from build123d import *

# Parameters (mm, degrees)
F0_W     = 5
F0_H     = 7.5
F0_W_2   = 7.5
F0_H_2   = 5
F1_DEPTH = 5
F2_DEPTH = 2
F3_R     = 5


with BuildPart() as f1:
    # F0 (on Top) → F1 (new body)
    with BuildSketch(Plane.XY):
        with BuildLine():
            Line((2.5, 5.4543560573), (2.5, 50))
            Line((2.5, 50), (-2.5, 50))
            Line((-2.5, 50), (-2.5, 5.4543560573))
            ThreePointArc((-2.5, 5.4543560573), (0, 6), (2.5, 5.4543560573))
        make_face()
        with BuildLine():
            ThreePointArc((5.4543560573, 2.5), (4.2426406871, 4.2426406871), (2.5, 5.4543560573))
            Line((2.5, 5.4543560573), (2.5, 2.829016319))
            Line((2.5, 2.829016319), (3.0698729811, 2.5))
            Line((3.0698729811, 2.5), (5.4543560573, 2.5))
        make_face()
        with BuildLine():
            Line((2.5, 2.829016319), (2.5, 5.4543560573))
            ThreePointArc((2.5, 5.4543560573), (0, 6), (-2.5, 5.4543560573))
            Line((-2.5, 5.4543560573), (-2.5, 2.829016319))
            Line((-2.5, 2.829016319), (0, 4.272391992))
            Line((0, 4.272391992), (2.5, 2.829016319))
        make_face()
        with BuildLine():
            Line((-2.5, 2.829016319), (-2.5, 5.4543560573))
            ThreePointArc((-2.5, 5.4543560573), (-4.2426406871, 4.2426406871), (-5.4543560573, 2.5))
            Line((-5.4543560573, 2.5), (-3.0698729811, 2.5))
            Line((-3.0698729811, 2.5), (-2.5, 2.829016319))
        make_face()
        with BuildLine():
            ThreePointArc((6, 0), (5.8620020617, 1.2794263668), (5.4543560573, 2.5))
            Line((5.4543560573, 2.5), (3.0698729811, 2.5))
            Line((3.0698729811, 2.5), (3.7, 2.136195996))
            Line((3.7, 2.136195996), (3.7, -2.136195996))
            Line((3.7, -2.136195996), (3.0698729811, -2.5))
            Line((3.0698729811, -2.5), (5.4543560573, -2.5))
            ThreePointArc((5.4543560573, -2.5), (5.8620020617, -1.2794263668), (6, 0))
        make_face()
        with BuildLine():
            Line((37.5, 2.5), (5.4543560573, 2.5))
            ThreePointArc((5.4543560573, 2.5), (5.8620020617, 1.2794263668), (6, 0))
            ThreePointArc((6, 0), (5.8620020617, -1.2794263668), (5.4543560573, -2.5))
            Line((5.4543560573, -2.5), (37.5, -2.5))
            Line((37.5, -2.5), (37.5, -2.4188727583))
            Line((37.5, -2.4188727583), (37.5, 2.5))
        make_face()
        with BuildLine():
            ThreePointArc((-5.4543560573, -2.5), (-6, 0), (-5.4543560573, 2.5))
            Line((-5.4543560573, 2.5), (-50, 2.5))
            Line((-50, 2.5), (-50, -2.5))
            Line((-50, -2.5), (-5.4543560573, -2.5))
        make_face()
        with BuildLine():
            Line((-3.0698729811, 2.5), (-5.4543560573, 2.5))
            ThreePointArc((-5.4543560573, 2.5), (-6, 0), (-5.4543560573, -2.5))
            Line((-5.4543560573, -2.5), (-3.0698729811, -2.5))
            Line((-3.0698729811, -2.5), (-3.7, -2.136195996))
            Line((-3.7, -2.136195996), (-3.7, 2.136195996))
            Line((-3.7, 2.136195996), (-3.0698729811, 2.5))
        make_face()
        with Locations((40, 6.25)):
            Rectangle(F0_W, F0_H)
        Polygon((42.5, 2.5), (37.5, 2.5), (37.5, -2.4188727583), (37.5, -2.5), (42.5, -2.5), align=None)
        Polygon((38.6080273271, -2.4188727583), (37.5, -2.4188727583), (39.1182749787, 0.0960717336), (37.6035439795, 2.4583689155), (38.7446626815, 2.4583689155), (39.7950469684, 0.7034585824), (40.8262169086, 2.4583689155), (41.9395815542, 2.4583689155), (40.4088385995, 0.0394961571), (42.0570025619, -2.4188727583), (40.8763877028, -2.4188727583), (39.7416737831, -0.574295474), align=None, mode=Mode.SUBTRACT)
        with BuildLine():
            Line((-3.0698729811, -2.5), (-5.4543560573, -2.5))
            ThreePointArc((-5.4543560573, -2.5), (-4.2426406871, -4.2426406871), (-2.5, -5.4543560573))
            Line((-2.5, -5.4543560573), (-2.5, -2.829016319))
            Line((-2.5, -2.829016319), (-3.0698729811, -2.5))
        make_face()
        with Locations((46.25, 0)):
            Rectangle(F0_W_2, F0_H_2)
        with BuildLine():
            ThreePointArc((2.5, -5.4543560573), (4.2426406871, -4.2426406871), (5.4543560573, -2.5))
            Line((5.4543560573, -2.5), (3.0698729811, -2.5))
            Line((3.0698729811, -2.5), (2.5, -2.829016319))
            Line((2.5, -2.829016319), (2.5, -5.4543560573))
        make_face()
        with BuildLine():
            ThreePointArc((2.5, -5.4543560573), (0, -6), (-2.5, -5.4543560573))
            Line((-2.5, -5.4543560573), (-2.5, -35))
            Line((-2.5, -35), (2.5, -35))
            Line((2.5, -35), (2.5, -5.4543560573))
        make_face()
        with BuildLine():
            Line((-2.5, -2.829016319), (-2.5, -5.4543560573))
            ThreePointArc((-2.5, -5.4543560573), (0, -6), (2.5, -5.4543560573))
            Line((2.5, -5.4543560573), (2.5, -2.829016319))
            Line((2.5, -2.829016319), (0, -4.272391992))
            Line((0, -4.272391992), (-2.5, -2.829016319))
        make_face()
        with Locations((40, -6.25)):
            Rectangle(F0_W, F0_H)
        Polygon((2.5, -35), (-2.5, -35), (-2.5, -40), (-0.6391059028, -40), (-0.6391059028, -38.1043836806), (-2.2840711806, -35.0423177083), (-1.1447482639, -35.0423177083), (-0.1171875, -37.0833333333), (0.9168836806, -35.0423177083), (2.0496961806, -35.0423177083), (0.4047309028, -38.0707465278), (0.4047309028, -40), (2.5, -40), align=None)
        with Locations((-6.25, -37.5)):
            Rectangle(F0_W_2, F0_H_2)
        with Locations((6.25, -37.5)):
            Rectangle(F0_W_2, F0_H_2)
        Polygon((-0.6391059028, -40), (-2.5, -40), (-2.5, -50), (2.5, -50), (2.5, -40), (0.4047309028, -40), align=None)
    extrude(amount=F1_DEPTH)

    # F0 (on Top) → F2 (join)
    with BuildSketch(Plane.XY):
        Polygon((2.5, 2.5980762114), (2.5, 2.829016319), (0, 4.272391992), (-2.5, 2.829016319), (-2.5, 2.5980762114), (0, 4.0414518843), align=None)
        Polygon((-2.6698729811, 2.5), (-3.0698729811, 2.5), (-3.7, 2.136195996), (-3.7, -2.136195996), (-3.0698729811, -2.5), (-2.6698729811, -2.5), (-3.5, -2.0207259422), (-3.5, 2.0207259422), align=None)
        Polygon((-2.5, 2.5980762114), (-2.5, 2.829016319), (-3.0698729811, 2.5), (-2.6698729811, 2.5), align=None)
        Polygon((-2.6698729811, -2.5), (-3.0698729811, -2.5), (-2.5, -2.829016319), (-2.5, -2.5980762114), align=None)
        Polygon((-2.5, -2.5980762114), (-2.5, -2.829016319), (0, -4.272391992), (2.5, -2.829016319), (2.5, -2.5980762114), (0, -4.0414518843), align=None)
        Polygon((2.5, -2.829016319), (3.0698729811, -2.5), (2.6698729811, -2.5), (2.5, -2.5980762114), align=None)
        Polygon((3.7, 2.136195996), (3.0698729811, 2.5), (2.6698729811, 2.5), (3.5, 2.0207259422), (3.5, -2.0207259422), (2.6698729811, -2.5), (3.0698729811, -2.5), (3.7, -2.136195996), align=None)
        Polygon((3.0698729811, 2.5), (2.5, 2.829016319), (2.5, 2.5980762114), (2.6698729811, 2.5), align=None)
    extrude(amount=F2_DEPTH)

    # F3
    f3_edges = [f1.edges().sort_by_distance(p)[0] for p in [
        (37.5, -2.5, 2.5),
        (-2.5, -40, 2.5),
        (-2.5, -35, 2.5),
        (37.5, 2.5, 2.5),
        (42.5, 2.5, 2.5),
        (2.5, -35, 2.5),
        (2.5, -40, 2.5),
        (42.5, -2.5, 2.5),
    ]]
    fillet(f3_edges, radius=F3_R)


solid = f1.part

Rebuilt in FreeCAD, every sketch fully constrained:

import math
import FreeCAD as App
import Part
import Sketcher
from FreeCAD import Vector
Q = App.Units.Quantity


def edges_at(feature, points):
    """Names of the edges that pass closest to the given points."""
    edges = feature.Shape.Edges
    near = lambda p: min(range(len(edges)), key=lambda i: edges[i].distToShape(Part.Vertex(*p))[0])
    return sorted({f"Edge{near(p) + 1}" for p in points})


def add_polygon(sketch, points):
    """Adds a closed chain of lines whose ends are joined by coincident constraints."""
    first, n = sketch.GeometryCount, len(points)
    for a, b in zip(points, points[1:] + points[:1]):
        sketch.addGeometry(Part.LineSegment(App.Vector(*a, 0), App.Vector(*b, 0)), False)
    for i in range(n):
        sketch.addConstraint(Sketcher.Constraint("Coincident", first + i, 2, first + (i + 1) % n, 1))

doc = App.newDocument("Part")
body = doc.addObject("PartDesign::Body", "Body")

sketch1 = doc.addObject("Sketcher::SketchObject", "Sketch")
body.addObject(sketch1)
sketch1.AttachmentSupport = (doc.XY_Plane, [""])
sketch1.MapMode = "FlatFace"
sketch1.addGeometry(Part.LineSegment(Vector(2.5, 5.5, 0), Vector(2.5, 50, 0)), False)
sketch1.addGeometry(Part.LineSegment(Vector(2.5, 50, 0), Vector(-2.5, 50, 0)), False)
sketch1.addGeometry(Part.LineSegment(Vector(-2.5, 50, 0), Vector(-2.5, 5.5, 0)), False)
sketch1.addGeometry(Part.ArcOfCircle(Part.Circle(Vector(0, 0, 0), Vector(0, 0, 1), 6), math.radians(115), math.radians(155)), False)
sketch1.addGeometry(Part.LineSegment(Vector(-5.5, 2.5, 0), Vector(-50, 2.5, 0)), False)
sketch1.addGeometry(Part.LineSegment(Vector(-50, 2.5, 0), Vector(-50, -2.5, 0)), False)
sketch1.addGeometry(Part.LineSegment(Vector(-50, -2.5, 0), Vector(-5.5, -2.5, 0)), False)
sketch1.addGeometry(Part.ArcOfCircle(Part.Circle(Vector(0, 0, 0), Vector(0, 0, 1), 6), math.radians(-155), math.radians(-115)), False)
sketch1.addGeometry(Part.LineSegment(Vector(-2.5, -5.5, 0), Vector(-2.5, -35, 0)), False)
sketch1.addGeometry(Part.LineSegment(Vector(-2.5, -35, 0), Vector(-10, -35, 0)), False)
sketch1.addGeometry(Part.LineSegment(Vector(-10, -35, 0), Vector(-10, -40, 0)), False)
sketch1.addGeometry(Part.LineSegment(Vector(-10, -40, 0), Vector(-2.5, -40, 0)), False)
sketch1.addGeometry(Part.LineSegment(Vector(-2.5, -40, 0), Vector(-2.5, -50, 0)), False)
sketch1.addGeometry(Part.LineSegment(Vector(-2.5, -50, 0), Vector(2.5, -50, 0)), False)
sketch1.addGeometry(Part.LineSegment(Vector(2.5, -50, 0), Vector(2.5, -40, 0)), False)
sketch1.addGeometry(Part.LineSegment(Vector(2.5, -40, 0), Vector(10, -40, 0)), False)
sketch1.addGeometry(Part.LineSegment(Vector(10, -40, 0), Vector(10, -35, 0)), False)
sketch1.addGeometry(Part.LineSegment(Vector(10, -35, 0), Vector(2.5, -35, 0)), False)
sketch1.addGeometry(Part.LineSegment(Vector(2.5, -35, 0), Vector(2.5, -5.5, 0)), False)
sketch1.addGeometry(Part.ArcOfCircle(Part.Circle(Vector(0, 0, 0), Vector(0, 0, 1), 6), math.radians(-65), math.radians(-25)), False)
sketch1.addGeometry(Part.LineSegment(Vector(5.5, -2.5, 0), Vector(37.5, -2.5, 0)), False)
sketch1.addGeometry(Part.LineSegment(Vector(37.5, -2.5, 0), Vector(37.5, -10, 0)), False)
sketch1.addGeometry(Part.LineSegment(Vector(37.5, -10, 0), Vector(42.5, -10, 0)), False)
sketch1.addGeometry(Part.LineSegment(Vector(42.5, -10, 0), Vector(42.5, -2.5, 0)), False)
sketch1.addGeometry(Part.LineSegment(Vector(42.5, -2.5, 0), Vector(50, -2.5, 0)), False)
sketch1.addGeometry(Part.LineSegment(Vector(50, -2.5, 0), Vector(50, 2.5, 0)), False)
sketch1.addGeometry(Part.LineSegment(Vector(50, 2.5, 0), Vector(42.5, 2.5, 0)), False)
sketch1.addGeometry(Part.LineSegment(Vector(42.5, 2.5, 0), Vector(42.5, 10, 0)), False)
sketch1.addGeometry(Part.LineSegment(Vector(42.5, 10, 0), Vector(37.5, 10, 0)), False)
sketch1.addGeometry(Part.LineSegment(Vector(37.5, 10, 0), Vector(37.5, 2.5, 0)), False)
sketch1.addGeometry(Part.LineSegment(Vector(37.5, 2.5, 0), Vector(5.5, 2.5, 0)), False)
sketch1.addGeometry(Part.ArcOfCircle(Part.Circle(Vector(0, 0, 0), Vector(0, 0, 1), 6), math.radians(25), math.radians(65)), False)
add_polygon(sketch1, [(-0.6, -40), (-0.6, -38.1), (-2.3, -35), (-1.1, -35), (-0.1, -37.1), (0.9, -35), (2, -35), (0.4, -38.1), (0.4, -40)])
add_polygon(sketch1, [(-2.5, -2.8), (-3.1, -2.5), (-3.7, -2.1), (-3.7, 2.1), (-3.1, 2.5), (-2.5, 2.8), (0, 4.3), (2.5, 2.8), (3.1, 2.5), (3.7, 2.1), (3.7, -2.1), (3.1, -2.5), (2.5, -2.8), (0, -4.3)])
add_polygon(sketch1, [(39.7, -0.6), (38.6, -2.4), (37.5, -2.4), (39.1, 0.1), (37.6, 2.5), (38.7, 2.5), (39.8, 0.7), (40.8, 2.5), (41.9, 2.5), (40.4, 0), (42.1, -2.4), (40.9, -2.4)])
sketch1.addConstraint([
    Sketcher.Constraint("Coincident", 0, 2, 1, 1),
    Sketcher.Constraint("Coincident", 1, 2, 2, 1),
    Sketcher.Constraint("Coincident", 2, 2, 3, 1),
    Sketcher.Constraint("Coincident", 3, 2, 4, 1),
    Sketcher.Constraint("Coincident", 4, 2, 5, 1),
    Sketcher.Constraint("Coincident", 5, 2, 6, 1),
    Sketcher.Constraint("Coincident", 6, 2, 7, 1),
    Sketcher.Constraint("Coincident", 7, 2, 8, 1),
    Sketcher.Constraint("Coincident", 8, 2, 9, 1),
    Sketcher.Constraint("Coincident", 9, 2, 10, 1),
    Sketcher.Constraint("Coincident", 10, 2, 11, 1),
    Sketcher.Constraint("Coincident", 11, 2, 12, 1),
    Sketcher.Constraint("Coincident", 12, 2, 13, 1),
    Sketcher.Constraint("Coincident", 13, 2, 14, 1),
    Sketcher.Constraint("Coincident", 14, 2, 15, 1),
    Sketcher.Constraint("Coincident", 15, 2, 16, 1),
    Sketcher.Constraint("Coincident", 16, 2, 17, 1),
    Sketcher.Constraint("Coincident", 17, 2, 18, 1),
    Sketcher.Constraint("Coincident", 18, 2, 19, 1),
    Sketcher.Constraint("Coincident", 19, 2, 20, 1),
    Sketcher.Constraint("Coincident", 20, 2, 21, 1),
    Sketcher.Constraint("Coincident", 21, 2, 22, 1),
    Sketcher.Constraint("Coincident", 22, 2, 23, 1),
    Sketcher.Constraint("Coincident", 23, 2, 24, 1),
    Sketcher.Constraint("Coincident", 24, 2, 25, 1),
    Sketcher.Constraint("Coincident", 25, 2, 26, 1),
    Sketcher.Constraint("Coincident", 26, 2, 27, 1),
    Sketcher.Constraint("Coincident", 27, 2, 28, 1),
    Sketcher.Constraint("Coincident", 28, 2, 29, 1),
    Sketcher.Constraint("Coincident", 29, 2, 30, 1),
    Sketcher.Constraint("Coincident", 30, 2, 31, 1),
    Sketcher.Constraint("Coincident", 31, 2, 0, 1),
    Sketcher.Constraint("Vertical", 0),
    Sketcher.Constraint("Horizontal", 1),
    Sketcher.Constraint("Vertical", 2),
    Sketcher.Constraint("Horizontal", 4),
    Sketcher.Constraint("Vertical", 5),
    Sketcher.Constraint("Horizontal", 6),
    Sketcher.Constraint("Vertical", 8),
    Sketcher.Constraint("Horizontal", 9),
    Sketcher.Constraint("Vertical", 10),
    Sketcher.Constraint("Horizontal", 11),
    Sketcher.Constraint("Vertical", 12),
    Sketcher.Constraint("Horizontal", 13),
    Sketcher.Constraint("Vertical", 14),
    Sketcher.Constraint("Horizontal", 15),
    Sketcher.Constraint("Vertical", 16),
    Sketcher.Constraint("Horizontal", 17),
    Sketcher.Constraint("Vertical", 18),
    Sketcher.Constraint("Horizontal", 20),
    Sketcher.Constraint("Vertical", 21),
    Sketcher.Constraint("Horizontal", 22),
    Sketcher.Constraint("Vertical", 23),
    Sketcher.Constraint("Horizontal", 24),
    Sketcher.Constraint("Vertical", 25),
    Sketcher.Constraint("Horizontal", 26),
    Sketcher.Constraint("Vertical", 27),
    Sketcher.Constraint("Horizontal", 28),
    Sketcher.Constraint("Vertical", 29),
    Sketcher.Constraint("Horizontal", 30),
    Sketcher.Constraint("Vertical", 32),
    Sketcher.Constraint("Horizontal", 34),
    Sketcher.Constraint("Horizontal", 37),
    Sketcher.Constraint("Vertical", 39),
    Sketcher.Constraint("Horizontal", 40),
    Sketcher.Constraint("Vertical", 43),
    Sketcher.Constraint("Vertical", 50),
    Sketcher.Constraint("Horizontal", 56),
    Sketcher.Constraint("Horizontal", 59),
    Sketcher.Constraint("Horizontal", 62),
    Sketcher.Constraint("Horizontal", 65),
    Sketcher.Constraint("Coincident", 3, 3, -1, 1),
    Sketcher.Constraint("Coincident", 7, 3, -1, 1),
    Sketcher.Constraint("Coincident", 19, 3, -1, 1),
    Sketcher.Constraint("Coincident", 31, 3, -1, 1),
    Sketcher.Constraint("Equal", 3, 7),
    Sketcher.Constraint("Equal", 7, 19),
    Sketcher.Constraint("Equal", 19, 31),
    Sketcher.Constraint("Symmetric", 0, 2, 12, 2, -1, 1),
    Sketcher.Constraint("Symmetric", 4, 2, 24, 2, -1, 1),
    Sketcher.Constraint("Symmetric", 41, 2, 48, 2, -1, 1),
    Sketcher.Constraint("Symmetric", 42, 2, 49, 2, -1, 1),
    Sketcher.Constraint("Symmetric", 44, 2, 51, 2, -1, 1),
    Sketcher.Constraint("Symmetric", 45, 2, 52, 2, -1, 1),
    Sketcher.Constraint("Symmetric", 46, 2, 53, 2, -1, 1),
    Sketcher.Constraint("Symmetric", 47, 2, 54, 2, -1, 1),
    Sketcher.Constraint("Symmetric", 11, 2, 14, 2, -2),
    Sketcher.Constraint("Symmetric", 9, 2, 16, 2, -2),
    Sketcher.Constraint("Symmetric", 45, 2, 47, 2, -2),
    Sketcher.Constraint("Symmetric", 44, 2, 48, 2, -2),
    Sketcher.Constraint("Symmetric", 23, 2, 26, 2, -1),
    Sketcher.Constraint("Symmetric", 21, 2, 28, 2, -1),
    Sketcher.Constraint("PointOnObject", 46, 2, -2),
    Sketcher.Constraint("Parallel", 41, 42),
    Sketcher.Constraint("Parallel", 44, 45),
    Sketcher.Constraint("Parallel", 45, 46),
    Sketcher.Constraint("Parallel", 46, 51),
    Sketcher.Constraint("Horizontal", 7, 2, 18, 2),
    Sketcher.Constraint("Horizontal", 6, 2, 19, 2),
    Sketcher.Constraint("Horizontal", 20, 2, 23, 2),
    Sketcher.Constraint("Horizontal", 26, 2, 29, 2),
    Sketcher.Constraint("Horizontal", 2, 2, 31, 2),
    Sketcher.Constraint("Horizontal", 34, 2, 36, 2),
    Sketcher.Constraint("Horizontal", 15, 2, 39, 2),
    Sketcher.Constraint("Horizontal", 24, 2, 41, 2),
    Sketcher.Constraint("Horizontal", 59, 2, 61, 2),
    Sketcher.Constraint("Horizontal", 56, 2, 64, 2),
    Sketcher.Constraint("Vertical", 2, 2, 7, 2),
    Sketcher.Constraint("Vertical", 12, 2, 45, 2),
    Sketcher.Constraint("Vertical", 29, 2, 56, 2),
    Sketcher.Constraint("Equal", 13, 22),
    Sketcher.Constraint("Equal", 17, 24),
    Sketcher.Constraint("Equal", 6, 0),
    Sketcher.Constraint("Equal", 28, 5),
    Sketcher.Constraint("Equal", 5, 10),
    Sketcher.Constraint("Equal", 26, 21),
    Sketcher.Constraint("Radius", 3, 6.0),
    Sketcher.Constraint("DistanceX", 1, 2, 1, 1, 5.0),
    Sketcher.Constraint("DistanceY", 12, 2, 12, 1, 10.0),
    Sketcher.Constraint("Angle", 41, Q("150 deg")),
    Sketcher.Constraint("DistanceX", 9, 2, 9, 1, 7.5),
    Sketcher.Constraint("DistanceY", -1, 1, 0, 2, 50.0),
    Sketcher.Constraint("DistanceX", 42, 2, -1, 1, 3.7),
    Sketcher.Constraint("DistanceX", 59, 1, 59, 2, 1.141119),
    Sketcher.Constraint("DistanceY", 43, 1, 43, 2, 4.272392),
    Sketcher.Constraint("Distance", 33, 3.47594),
    Sketcher.Constraint("Distance", 55, 2.165091),
    Sketcher.Constraint("Distance", 57, 2.990612),
    Sketcher.Constraint("Distance", 61, 2.035441),
    Sketcher.Constraint("Distance", 66, 2.16565),
    Sketcher.Constraint("DistanceX", 34, 1, 34, 2, 1.139323),
    Sketcher.Constraint("DistanceX", 37, 1, 37, 2, 1.132812),
    Sketcher.Constraint("DistanceX", 40, 2, 40, 1, 1.043837),
    Sketcher.Constraint("DistanceX", 56, 2, 56, 1, 1.108027),
    Sketcher.Constraint("DistanceX", 62, 1, 62, 2, 1.113365),
    Sketcher.Constraint("DistanceX", 65, 2, 65, 1, 1.180615),
    Sketcher.Constraint("DistanceY", 32, 1, 32, 2, 1.895616),
    Sketcher.Constraint("DistanceY", 39, 2, 39, 1, 1.929253),
    Sketcher.Constraint("DistanceX", 33, 2, -1, 1, 2.284071),
    Sketcher.Constraint("DistanceX", -1, 1, 38, 2, 0.404731),
    Sketcher.Constraint("DistanceY", -1, 1, 57, 2, 0.096072),
    Sketcher.Constraint("DistanceY", -1, 1, 58, 2, 2.458369),
    Sketcher.Constraint("DistanceY", -1, 1, 60, 2, 0.703459),
    Sketcher.Constraint("DistanceX", -1, 1, 62, 2, 41.939582),
    Sketcher.Constraint("DistanceX", -1, 1, 63, 2, 40.408839),
    Sketcher.Constraint("Distance", 35, 2.285088),
    Sketcher.Constraint("Distance", 36, 2.288023),
    Sketcher.Constraint("Distance", 38, 3.446345),
    Sketcher.Constraint("Distance", 58, 2.806218),
    Sketcher.Constraint("Distance", 60, 2.045243),
    Sketcher.Constraint("Distance", 63, 2.862537),
    Sketcher.Constraint("Distance", 64, 2.959733),
])
pad1 = doc.addObject("PartDesign::Pad", "Pad")
body.addObject(pad1)
pad1.Profile = sketch1
pad1.Length = 5

sketch2 = doc.addObject("Sketcher::SketchObject", "Sketch001")
body.addObject(sketch2)
sketch2.AttachmentSupport = (doc.XY_Plane, [""])
sketch2.MapMode = "FlatFace"
add_polygon(sketch2, [(2.5, 2.83), (0, 4.27), (-2.5, 2.83), (-3.07, 2.5), (-3.7, 2.14), (-3.7, -2.14), (-3.07, -2.5), (-2.5, -2.83), (0, -4.27), (2.5, -2.83), (3.07, -2.5), (3.7, -2.14), (3.7, 2.14), (3.07, 2.5)])
add_polygon(sketch2, [(2.67, 2.5), (3.5, 2.02), (3.5, -2.02), (2.67, -2.5), (2.5, -2.6), (0, -4.04), (-2.5, -2.6), (-2.67, -2.5), (-3.5, -2.02), (-3.5, 2.02), (-2.67, 2.5), (-2.5, 2.6), (0, 4.04), (2.5, 2.6)])
sketch2.addConstraint([
    Sketcher.Constraint("Vertical", 4),
    Sketcher.Constraint("Vertical", 11),
    Sketcher.Constraint("Vertical", 15),
    Sketcher.Constraint("Vertical", 22),
    Sketcher.Constraint("Symmetric", 0, 2, 7, 2, -1, 1),
    Sketcher.Constraint("Symmetric", 1, 2, 8, 2, -1, 1),
    Sketcher.Constraint("Symmetric", 2, 2, 9, 2, -1, 1),
    Sketcher.Constraint("Symmetric", 3, 2, 10, 2, -1, 1),
    Sketcher.Constraint("Symmetric", 5, 2, 12, 2, -1, 1),
    Sketcher.Constraint("Symmetric", 6, 2, 13, 2, -1, 1),
    Sketcher.Constraint("Symmetric", 14, 2, 21, 2, -1, 1),
    Sketcher.Constraint("Symmetric", 16, 2, 23, 2, -1, 1),
    Sketcher.Constraint("Symmetric", 17, 2, 24, 2, -1, 1),
    Sketcher.Constraint("Symmetric", 18, 2, 25, 2, -1, 1),
    Sketcher.Constraint("Symmetric", 19, 2, 26, 2, -1, 1),
    Sketcher.Constraint("Symmetric", 20, 2, 27, 2, -1, 1),
    Sketcher.Constraint("Symmetric", 6, 2, 8, 2, -2),
    Sketcher.Constraint("Symmetric", 5, 2, 9, 2, -2),
    Sketcher.Constraint("Symmetric", 17, 2, 19, 2, -2),
    Sketcher.Constraint("Symmetric", 16, 2, 20, 2, -2),
    Sketcher.Constraint("PointOnObject", 0, 2, -2),
    Sketcher.Constraint("PointOnObject", 18, 2, -2),
    Sketcher.Constraint("Parallel", 1, 2),
    Sketcher.Constraint("Parallel", 2, 3),
    Sketcher.Constraint("Parallel", 0, 5),
    Sketcher.Constraint("Parallel", 7, 12),
    Sketcher.Constraint("Parallel", 13, 14),
    Sketcher.Constraint("Parallel", 10, 16),
    Sketcher.Constraint("Parallel", 16, 17),
    Sketcher.Constraint("Parallel", 17, 18),
    Sketcher.Constraint("Parallel", 18, 23),
    Sketcher.Constraint("Horizontal", 9, 2, 16, 2),
    Sketcher.Constraint("Vertical", 13, 2, 17, 2),
    Sketcher.Constraint("Angle", 0, Q("150 deg")),
    Sketcher.Constraint("DistanceY", 5, 2, 2, 2, 5.0),
    Sketcher.Constraint("DistanceX", 6, 2, 8, 2, 5.0),
    Sketcher.Constraint("DistanceX", 13, 2, 14, 2, 1.0),
    Sketcher.Constraint("DistanceX", 3, 2, -1, 1, 3.7),
    Sketcher.Constraint("DistanceX", 16, 2, 9, 2, 0.4),
    Sketcher.Constraint("DistanceY", 4, 2, 4, 1, 4.272392),
])
pad2 = doc.addObject("PartDesign::Pad", "Pad001")
body.addObject(pad2)
pad2.Profile = sketch2
pad2.Length = 2
doc.recompute()

fillet = doc.addObject("PartDesign::Fillet", "Fillet")
body.addObject(fillet)
fillet.Base = (pad2, edges_at(pad2, [
    (37.5, -2.5, 2.5),
    (-2.5, -40, 2.5),
    (-2.5, -35, 2.5),
    (37.5, 2.5, 2.5),
    (42.5, 2.5, 2.5),
    (2.5, -35, 2.5),
    (2.5, -40, 2.5),
    (42.5, -2.5, 2.5),
]))
fillet.Radius = 5

doc.recompute()
